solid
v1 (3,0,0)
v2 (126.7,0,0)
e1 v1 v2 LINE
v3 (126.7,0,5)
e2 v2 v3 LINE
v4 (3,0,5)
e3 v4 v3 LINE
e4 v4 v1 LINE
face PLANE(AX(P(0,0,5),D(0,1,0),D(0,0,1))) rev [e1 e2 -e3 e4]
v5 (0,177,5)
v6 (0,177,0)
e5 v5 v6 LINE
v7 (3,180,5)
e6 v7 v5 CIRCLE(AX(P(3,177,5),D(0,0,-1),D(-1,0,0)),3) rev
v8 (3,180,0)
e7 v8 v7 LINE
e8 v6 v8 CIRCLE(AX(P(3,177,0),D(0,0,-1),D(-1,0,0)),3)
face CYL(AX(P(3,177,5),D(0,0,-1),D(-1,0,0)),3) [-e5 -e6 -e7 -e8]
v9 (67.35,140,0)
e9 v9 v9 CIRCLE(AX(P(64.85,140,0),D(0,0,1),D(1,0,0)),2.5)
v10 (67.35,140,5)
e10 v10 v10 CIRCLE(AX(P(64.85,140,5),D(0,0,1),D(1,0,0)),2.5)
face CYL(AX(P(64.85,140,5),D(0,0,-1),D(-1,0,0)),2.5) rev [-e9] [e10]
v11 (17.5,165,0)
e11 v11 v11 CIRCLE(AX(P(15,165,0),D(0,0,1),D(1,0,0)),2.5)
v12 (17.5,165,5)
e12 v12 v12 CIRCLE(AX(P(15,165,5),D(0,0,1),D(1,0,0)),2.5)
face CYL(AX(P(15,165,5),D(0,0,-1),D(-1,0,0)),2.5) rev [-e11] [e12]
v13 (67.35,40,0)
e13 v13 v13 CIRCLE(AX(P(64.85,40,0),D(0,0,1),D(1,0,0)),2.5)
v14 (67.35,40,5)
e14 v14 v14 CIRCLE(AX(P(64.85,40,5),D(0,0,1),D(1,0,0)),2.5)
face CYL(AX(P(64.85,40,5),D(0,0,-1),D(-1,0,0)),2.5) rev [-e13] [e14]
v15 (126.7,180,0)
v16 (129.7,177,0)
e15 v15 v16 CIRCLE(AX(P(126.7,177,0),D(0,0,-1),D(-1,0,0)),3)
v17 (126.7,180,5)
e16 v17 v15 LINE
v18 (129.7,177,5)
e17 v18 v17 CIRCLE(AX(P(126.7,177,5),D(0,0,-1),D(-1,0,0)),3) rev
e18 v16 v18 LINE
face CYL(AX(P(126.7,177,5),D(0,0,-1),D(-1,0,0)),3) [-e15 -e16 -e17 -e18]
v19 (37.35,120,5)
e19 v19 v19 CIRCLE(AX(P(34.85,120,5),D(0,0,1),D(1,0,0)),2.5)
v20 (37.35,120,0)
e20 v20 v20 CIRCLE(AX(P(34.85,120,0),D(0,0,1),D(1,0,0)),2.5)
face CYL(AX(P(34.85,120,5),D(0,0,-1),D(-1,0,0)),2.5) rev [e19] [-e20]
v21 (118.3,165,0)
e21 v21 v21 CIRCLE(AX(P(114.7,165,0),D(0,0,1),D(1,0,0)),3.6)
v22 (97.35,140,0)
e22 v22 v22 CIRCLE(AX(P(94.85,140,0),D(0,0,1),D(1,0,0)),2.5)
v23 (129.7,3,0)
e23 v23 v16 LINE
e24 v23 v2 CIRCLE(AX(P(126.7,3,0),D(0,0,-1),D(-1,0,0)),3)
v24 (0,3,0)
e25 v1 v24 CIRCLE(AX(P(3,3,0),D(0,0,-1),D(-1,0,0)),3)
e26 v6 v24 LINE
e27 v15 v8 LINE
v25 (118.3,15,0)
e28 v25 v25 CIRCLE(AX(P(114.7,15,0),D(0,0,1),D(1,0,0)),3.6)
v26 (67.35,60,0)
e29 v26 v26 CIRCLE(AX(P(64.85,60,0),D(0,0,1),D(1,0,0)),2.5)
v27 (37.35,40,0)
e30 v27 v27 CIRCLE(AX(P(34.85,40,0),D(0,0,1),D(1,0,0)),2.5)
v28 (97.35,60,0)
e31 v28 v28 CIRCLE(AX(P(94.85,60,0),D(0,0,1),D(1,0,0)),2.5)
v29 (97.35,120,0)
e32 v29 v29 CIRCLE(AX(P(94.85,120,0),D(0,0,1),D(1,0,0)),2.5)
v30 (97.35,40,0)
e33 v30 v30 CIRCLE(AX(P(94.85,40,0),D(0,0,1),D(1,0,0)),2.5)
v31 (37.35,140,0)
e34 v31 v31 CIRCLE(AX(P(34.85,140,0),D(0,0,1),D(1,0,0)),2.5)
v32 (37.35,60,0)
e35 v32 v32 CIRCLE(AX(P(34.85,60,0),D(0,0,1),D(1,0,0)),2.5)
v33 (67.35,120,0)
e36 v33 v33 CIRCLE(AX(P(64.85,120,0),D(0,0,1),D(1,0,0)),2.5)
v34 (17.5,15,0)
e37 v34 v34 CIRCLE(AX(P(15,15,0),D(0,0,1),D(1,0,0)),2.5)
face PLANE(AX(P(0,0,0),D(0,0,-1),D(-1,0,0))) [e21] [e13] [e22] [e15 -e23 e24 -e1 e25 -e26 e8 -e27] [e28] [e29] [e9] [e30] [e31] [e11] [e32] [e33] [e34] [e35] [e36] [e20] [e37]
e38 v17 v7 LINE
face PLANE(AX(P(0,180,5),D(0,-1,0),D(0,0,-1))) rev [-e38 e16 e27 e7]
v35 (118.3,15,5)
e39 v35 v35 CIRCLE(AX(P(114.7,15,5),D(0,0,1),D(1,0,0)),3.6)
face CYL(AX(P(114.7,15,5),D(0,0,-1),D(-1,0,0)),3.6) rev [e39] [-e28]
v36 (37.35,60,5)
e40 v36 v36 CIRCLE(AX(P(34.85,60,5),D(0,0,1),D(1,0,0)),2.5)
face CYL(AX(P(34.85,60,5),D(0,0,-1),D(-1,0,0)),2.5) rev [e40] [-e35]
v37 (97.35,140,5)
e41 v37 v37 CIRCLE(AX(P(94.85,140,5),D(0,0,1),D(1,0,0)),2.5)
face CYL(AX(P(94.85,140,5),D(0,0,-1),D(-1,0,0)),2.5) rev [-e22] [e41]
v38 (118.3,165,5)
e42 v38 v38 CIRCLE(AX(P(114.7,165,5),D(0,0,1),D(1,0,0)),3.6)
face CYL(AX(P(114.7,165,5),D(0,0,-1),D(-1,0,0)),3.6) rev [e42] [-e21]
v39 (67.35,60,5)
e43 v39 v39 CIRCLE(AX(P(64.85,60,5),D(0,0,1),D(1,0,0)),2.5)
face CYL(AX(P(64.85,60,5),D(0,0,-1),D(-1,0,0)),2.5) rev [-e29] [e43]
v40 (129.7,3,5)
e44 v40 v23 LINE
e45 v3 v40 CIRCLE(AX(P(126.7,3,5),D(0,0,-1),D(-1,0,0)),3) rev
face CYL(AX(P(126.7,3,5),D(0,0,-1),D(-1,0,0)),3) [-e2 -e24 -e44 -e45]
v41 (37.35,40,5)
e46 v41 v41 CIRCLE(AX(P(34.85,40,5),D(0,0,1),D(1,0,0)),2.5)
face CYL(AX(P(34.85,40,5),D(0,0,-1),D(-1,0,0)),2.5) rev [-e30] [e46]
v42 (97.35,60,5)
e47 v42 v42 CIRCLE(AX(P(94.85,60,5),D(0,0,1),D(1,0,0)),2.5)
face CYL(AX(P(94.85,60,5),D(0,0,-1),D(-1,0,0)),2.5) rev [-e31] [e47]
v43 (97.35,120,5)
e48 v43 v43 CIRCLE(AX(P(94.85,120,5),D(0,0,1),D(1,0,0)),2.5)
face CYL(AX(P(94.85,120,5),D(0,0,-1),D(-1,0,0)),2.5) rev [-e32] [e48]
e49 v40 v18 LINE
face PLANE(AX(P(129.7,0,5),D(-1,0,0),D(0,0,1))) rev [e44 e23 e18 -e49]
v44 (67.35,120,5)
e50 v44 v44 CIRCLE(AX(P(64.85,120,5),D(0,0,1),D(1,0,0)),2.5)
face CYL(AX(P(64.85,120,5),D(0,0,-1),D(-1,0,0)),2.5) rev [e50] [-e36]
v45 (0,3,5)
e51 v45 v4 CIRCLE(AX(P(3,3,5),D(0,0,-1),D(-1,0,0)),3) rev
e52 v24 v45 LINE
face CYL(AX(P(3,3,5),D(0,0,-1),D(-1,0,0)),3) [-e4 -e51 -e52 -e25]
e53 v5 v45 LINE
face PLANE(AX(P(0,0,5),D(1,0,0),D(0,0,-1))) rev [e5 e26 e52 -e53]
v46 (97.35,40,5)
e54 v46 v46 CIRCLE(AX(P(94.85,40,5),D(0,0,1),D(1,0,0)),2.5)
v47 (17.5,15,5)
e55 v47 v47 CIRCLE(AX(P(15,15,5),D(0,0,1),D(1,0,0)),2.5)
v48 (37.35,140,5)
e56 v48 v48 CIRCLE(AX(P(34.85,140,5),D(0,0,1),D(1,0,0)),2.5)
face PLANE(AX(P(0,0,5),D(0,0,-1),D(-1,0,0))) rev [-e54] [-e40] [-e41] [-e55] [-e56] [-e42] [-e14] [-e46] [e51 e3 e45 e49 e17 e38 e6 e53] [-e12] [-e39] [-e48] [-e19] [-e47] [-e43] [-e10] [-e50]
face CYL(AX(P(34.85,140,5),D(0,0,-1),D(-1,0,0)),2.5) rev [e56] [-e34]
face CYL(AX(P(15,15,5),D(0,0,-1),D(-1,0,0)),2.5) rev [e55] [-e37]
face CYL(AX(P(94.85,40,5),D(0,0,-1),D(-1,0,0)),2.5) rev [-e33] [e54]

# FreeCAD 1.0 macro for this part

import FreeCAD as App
import Part
import Sketcher

V = App.Vector
Q = App.Units.Quantity


def edges_at(feature, points):
    """Names of the edges that pass closest to the given points."""
    edges = feature.Shape.Edges
    near = lambda p: min(range(len(edges)), key=lambda i: edges[i].distToShape(Part.Vertex(*p))[0])
    return sorted({f"Edge{near(p) + 1}" for p in points})


def add_polygon(sketch, points):
    """Adds a closed chain of lines whose ends are joined by coincident constraints."""
    first, n = sketch.GeometryCount, len(points)
    for a, b in zip(points, points[1:] + points[:1]):
        sketch.addGeometry(Part.LineSegment(App.Vector(*a, 0), App.Vector(*b, 0)), False)
    for i in range(n):
        sketch.addConstraint(Sketcher.Constraint("Coincident", first + i, 2, first + (i + 1) % n, 1))

doc = App.newDocument("Part")
body = doc.addObject("PartDesign::Body", "Body")

sketch1 = body.newObject("Sketcher::SketchObject", "Sketch")
sketch1.AttachmentSupport = (doc.getObject("XY_Plane"), [""])
sketch1.MapMode = "FlatFace"
add_polygon(sketch1, [(0, 180), (0, 0), (129.7, 0), (129.7, 180)])
sketch1.addGeometry(Part.Circle(V(15, 15, 0), V(0, 0, 1), 2.5), False)
sketch1.addGeometry(Part.Circle(V(34.9, 40, 0), V(0, 0, 1), 2.5), False)
sketch1.addGeometry(Part.Circle(V(64.8, 40, 0), V(0, 0, 1), 2.5), False)
sketch1.addGeometry(Part.Circle(V(34.9, 60, 0), V(0, 0, 1), 2.5), False)
sketch1.addGeometry(Part.Circle(V(64.8, 60, 0), V(0, 0, 1), 2.5), False)
sketch1.addGeometry(Part.Circle(V(114.7, 15, 0), V(0, 0, 1), 3.6), False)
sketch1.addGeometry(Part.Circle(V(94.8, 40, 0), V(0, 0, 1), 2.5), False)
sketch1.addGeometry(Part.Circle(V(94.8, 60, 0), V(0, 0, 1), 2.5), False)
sketch1.addGeometry(Part.Circle(V(34.9, 120, 0), V(0, 0, 1), 2.5), False)
sketch1.addGeometry(Part.Circle(V(64.8, 120, 0), V(0, 0, 1), 2.5), False)
sketch1.addGeometry(Part.Circle(V(34.9, 140, 0), V(0, 0, 1), 2.5), False)
sketch1.addGeometry(Part.Circle(V(15, 165, 0), V(0, 0, 1), 2.5), False)
sketch1.addGeometry(Part.Circle(V(64.8, 140, 0), V(0, 0, 1), 2.5), False)
sketch1.addGeometry(Part.Circle(V(94.8, 120, 0), V(0, 0, 1), 2.5), False)
sketch1.addGeometry(Part.Circle(V(94.8, 140, 0), V(0, 0, 1), 2.5), False)
sketch1.addGeometry(Part.Circle(V(114.7, 165, 0), V(0, 0, 1), 3.6), False)
sketch1.addConstraint(Sketcher.Constraint("Vertical", 0))
sketch1.addConstraint(Sketcher.Constraint("Horizontal", 1))
sketch1.addConstraint(Sketcher.Constraint("Vertical", 2))
sketch1.addConstraint(Sketcher.Constraint("Horizontal", 3))
sketch1.addConstraint(Sketcher.Constraint("Coincident", 0, 2, -1, 1))
sketch1.addConstraint(Sketcher.Constraint("Equal", 4, 5))
sketch1.addConstraint(Sketcher.Constraint("Equal", 5, 6))
sketch1.addConstraint(Sketcher.Constraint("Equal", 6, 7))
sketch1.addConstraint(Sketcher.Constraint("Equal", 7, 8))
sketch1.addConstraint(Sketcher.Constraint("Equal", 8, 10))
sketch1.addConstraint(Sketcher.Constraint("Equal", 10, 11))
sketch1.addConstraint(Sketcher.Constraint("Equal", 11, 12))
sketch1.addConstraint(Sketcher.Constraint("Equal", 12, 13))
sketch1.addConstraint(Sketcher.Constraint("Equal", 13, 14))
sketch1.addConstraint(Sketcher.Constraint("Equal", 14, 15))
sketch1.addConstraint(Sketcher.Constraint("Equal", 15, 16))
sketch1.addConstraint(Sketcher.Constraint("Equal", 16, 17))
sketch1.addConstraint(Sketcher.Constraint("Equal", 17, 18))
sketch1.addConstraint(Sketcher.Constraint("Equal", 9, 19))
sketch1.addConstraint(Sketcher.Constraint("Horizontal", 5, 3, 6, 3))
sketch1.addConstraint(Sketcher.Constraint("Horizontal", 7, 3, 8, 3))
sketch1.addConstraint(Sketcher.Constraint("Horizontal", 4, 3, 9, 3))
sketch1.addConstraint(Sketcher.Constraint("Horizontal", 6, 3, 10, 3))
sketch1.addConstraint(Sketcher.Constraint("Horizontal", 8, 3, 11, 3))
sketch1.addConstraint(Sketcher.Constraint("Horizontal", 12, 3, 13, 3))
sketch1.addConstraint(Sketcher.Constraint("Horizontal", 14, 3, 16, 3))
sketch1.addConstraint(Sketcher.Constraint("Horizontal", 13, 3, 17, 3))
sketch1.addConstraint(Sketcher.Constraint("Horizontal", 16, 3, 18, 3))
sketch1.addConstraint(Sketcher.Constraint("Horizontal", 15, 3, 19, 3))
sketch1.addConstraint(Sketcher.Constraint("Vertical", 5, 3, 7, 3))
sketch1.addConstraint(Sketcher.Constraint("Vertical", 6, 3, 8, 3))
sketch1.addConstraint(Sketcher.Constraint("Vertical", 10, 3, 11, 3))
sketch1.addConstraint(Sketcher.Constraint("Vertical", 7, 3, 12, 3))
sketch1.addConstraint(Sketcher.Constraint("Vertical", 8, 3, 13, 3))
sketch1.addConstraint(Sketcher.Constraint("Vertical", 12, 3, 14, 3))
sketch1.addConstraint(Sketcher.Constraint("Vertical", 4, 3, 15, 3))
sketch1.addConstraint(Sketcher.Constraint("Vertical", 13, 3, 16, 3))
sketch1.addConstraint(Sketcher.Constraint("Vertical", 11, 3, 17, 3))
sketch1.addConstraint(Sketcher.Constraint("Vertical", 17, 3, 18, 3))
sketch1.addConstraint(Sketcher.Constraint("Vertical", 9, 3, 19, 3))
sketch1.addConstraint(Sketcher.Constraint("Diameter", 4, Q("5 mm")))
sketch1.addConstraint(Sketcher.Constraint("Diameter", 9, Q("7.2 mm")))
sketch1.addConstraint(Sketcher.Constraint("DistanceY", 0, 2, 0, 1, Q("180 mm")))
sketch1.addConstraint(Sketcher.Constraint("DistanceX", 1, 1, 1, 2, Q("129.7 mm")))
sketch1.addConstraint(Sketcher.Constraint("DistanceX", -1, 1, 4, 3, Q("15 mm")))
sketch1.addConstraint(Sketcher.Constraint("DistanceY", -1, 1, 4, 3, Q("15 mm")))
sketch1.addConstraint(Sketcher.Constraint("DistanceY", -1, 1, 5, 3, Q("40 mm")))
sketch1.addConstraint(Sketcher.Constraint("DistanceY", -1, 1, 7, 3, Q("60 mm")))
sketch1.addConstraint(Sketcher.Constraint("DistanceY", -1, 1, 12, 3, Q("120 mm")))
sketch1.addConstraint(Sketcher.Constraint("DistanceY", -1, 1, 14, 3, Q("140 mm")))
sketch1.addConstraint(Sketcher.Constraint("DistanceY", -1, 1, 15, 3, Q("165 mm")))
sketch1.addConstraint(Sketcher.Constraint("DistanceX", 5, 3, 6, 3, Q("30 mm")))
sketch1.addConstraint(Sketcher.Constraint("DistanceX", 6, 3, 10, 3, Q("30 mm")))
sketch1.addConstraint(Sketcher.Constraint("DistanceX", 9, 3, 1, 2, Q("15 mm")))
sketch1.addConstraint(Sketcher.Constraint("DistanceX", -1, 1, 5, 3, Q("34.85 mm")))
pad1 = body.newObject("PartDesign::Pad", "Pad")
pad1.Profile = sketch1
pad1.Length = 5
doc.recompute()

fillet = body.newObject("PartDesign::Fillet", "Fillet")
fillet.Base = (pad1, edges_at(pad1, [
    (0, 180, 2.5),
    (129.7, 180, 2.5),
    (129.7, 0, 2.5),
    (0, 0, 2.5),
]))
fillet.Radius = 3

doc.recompute()
